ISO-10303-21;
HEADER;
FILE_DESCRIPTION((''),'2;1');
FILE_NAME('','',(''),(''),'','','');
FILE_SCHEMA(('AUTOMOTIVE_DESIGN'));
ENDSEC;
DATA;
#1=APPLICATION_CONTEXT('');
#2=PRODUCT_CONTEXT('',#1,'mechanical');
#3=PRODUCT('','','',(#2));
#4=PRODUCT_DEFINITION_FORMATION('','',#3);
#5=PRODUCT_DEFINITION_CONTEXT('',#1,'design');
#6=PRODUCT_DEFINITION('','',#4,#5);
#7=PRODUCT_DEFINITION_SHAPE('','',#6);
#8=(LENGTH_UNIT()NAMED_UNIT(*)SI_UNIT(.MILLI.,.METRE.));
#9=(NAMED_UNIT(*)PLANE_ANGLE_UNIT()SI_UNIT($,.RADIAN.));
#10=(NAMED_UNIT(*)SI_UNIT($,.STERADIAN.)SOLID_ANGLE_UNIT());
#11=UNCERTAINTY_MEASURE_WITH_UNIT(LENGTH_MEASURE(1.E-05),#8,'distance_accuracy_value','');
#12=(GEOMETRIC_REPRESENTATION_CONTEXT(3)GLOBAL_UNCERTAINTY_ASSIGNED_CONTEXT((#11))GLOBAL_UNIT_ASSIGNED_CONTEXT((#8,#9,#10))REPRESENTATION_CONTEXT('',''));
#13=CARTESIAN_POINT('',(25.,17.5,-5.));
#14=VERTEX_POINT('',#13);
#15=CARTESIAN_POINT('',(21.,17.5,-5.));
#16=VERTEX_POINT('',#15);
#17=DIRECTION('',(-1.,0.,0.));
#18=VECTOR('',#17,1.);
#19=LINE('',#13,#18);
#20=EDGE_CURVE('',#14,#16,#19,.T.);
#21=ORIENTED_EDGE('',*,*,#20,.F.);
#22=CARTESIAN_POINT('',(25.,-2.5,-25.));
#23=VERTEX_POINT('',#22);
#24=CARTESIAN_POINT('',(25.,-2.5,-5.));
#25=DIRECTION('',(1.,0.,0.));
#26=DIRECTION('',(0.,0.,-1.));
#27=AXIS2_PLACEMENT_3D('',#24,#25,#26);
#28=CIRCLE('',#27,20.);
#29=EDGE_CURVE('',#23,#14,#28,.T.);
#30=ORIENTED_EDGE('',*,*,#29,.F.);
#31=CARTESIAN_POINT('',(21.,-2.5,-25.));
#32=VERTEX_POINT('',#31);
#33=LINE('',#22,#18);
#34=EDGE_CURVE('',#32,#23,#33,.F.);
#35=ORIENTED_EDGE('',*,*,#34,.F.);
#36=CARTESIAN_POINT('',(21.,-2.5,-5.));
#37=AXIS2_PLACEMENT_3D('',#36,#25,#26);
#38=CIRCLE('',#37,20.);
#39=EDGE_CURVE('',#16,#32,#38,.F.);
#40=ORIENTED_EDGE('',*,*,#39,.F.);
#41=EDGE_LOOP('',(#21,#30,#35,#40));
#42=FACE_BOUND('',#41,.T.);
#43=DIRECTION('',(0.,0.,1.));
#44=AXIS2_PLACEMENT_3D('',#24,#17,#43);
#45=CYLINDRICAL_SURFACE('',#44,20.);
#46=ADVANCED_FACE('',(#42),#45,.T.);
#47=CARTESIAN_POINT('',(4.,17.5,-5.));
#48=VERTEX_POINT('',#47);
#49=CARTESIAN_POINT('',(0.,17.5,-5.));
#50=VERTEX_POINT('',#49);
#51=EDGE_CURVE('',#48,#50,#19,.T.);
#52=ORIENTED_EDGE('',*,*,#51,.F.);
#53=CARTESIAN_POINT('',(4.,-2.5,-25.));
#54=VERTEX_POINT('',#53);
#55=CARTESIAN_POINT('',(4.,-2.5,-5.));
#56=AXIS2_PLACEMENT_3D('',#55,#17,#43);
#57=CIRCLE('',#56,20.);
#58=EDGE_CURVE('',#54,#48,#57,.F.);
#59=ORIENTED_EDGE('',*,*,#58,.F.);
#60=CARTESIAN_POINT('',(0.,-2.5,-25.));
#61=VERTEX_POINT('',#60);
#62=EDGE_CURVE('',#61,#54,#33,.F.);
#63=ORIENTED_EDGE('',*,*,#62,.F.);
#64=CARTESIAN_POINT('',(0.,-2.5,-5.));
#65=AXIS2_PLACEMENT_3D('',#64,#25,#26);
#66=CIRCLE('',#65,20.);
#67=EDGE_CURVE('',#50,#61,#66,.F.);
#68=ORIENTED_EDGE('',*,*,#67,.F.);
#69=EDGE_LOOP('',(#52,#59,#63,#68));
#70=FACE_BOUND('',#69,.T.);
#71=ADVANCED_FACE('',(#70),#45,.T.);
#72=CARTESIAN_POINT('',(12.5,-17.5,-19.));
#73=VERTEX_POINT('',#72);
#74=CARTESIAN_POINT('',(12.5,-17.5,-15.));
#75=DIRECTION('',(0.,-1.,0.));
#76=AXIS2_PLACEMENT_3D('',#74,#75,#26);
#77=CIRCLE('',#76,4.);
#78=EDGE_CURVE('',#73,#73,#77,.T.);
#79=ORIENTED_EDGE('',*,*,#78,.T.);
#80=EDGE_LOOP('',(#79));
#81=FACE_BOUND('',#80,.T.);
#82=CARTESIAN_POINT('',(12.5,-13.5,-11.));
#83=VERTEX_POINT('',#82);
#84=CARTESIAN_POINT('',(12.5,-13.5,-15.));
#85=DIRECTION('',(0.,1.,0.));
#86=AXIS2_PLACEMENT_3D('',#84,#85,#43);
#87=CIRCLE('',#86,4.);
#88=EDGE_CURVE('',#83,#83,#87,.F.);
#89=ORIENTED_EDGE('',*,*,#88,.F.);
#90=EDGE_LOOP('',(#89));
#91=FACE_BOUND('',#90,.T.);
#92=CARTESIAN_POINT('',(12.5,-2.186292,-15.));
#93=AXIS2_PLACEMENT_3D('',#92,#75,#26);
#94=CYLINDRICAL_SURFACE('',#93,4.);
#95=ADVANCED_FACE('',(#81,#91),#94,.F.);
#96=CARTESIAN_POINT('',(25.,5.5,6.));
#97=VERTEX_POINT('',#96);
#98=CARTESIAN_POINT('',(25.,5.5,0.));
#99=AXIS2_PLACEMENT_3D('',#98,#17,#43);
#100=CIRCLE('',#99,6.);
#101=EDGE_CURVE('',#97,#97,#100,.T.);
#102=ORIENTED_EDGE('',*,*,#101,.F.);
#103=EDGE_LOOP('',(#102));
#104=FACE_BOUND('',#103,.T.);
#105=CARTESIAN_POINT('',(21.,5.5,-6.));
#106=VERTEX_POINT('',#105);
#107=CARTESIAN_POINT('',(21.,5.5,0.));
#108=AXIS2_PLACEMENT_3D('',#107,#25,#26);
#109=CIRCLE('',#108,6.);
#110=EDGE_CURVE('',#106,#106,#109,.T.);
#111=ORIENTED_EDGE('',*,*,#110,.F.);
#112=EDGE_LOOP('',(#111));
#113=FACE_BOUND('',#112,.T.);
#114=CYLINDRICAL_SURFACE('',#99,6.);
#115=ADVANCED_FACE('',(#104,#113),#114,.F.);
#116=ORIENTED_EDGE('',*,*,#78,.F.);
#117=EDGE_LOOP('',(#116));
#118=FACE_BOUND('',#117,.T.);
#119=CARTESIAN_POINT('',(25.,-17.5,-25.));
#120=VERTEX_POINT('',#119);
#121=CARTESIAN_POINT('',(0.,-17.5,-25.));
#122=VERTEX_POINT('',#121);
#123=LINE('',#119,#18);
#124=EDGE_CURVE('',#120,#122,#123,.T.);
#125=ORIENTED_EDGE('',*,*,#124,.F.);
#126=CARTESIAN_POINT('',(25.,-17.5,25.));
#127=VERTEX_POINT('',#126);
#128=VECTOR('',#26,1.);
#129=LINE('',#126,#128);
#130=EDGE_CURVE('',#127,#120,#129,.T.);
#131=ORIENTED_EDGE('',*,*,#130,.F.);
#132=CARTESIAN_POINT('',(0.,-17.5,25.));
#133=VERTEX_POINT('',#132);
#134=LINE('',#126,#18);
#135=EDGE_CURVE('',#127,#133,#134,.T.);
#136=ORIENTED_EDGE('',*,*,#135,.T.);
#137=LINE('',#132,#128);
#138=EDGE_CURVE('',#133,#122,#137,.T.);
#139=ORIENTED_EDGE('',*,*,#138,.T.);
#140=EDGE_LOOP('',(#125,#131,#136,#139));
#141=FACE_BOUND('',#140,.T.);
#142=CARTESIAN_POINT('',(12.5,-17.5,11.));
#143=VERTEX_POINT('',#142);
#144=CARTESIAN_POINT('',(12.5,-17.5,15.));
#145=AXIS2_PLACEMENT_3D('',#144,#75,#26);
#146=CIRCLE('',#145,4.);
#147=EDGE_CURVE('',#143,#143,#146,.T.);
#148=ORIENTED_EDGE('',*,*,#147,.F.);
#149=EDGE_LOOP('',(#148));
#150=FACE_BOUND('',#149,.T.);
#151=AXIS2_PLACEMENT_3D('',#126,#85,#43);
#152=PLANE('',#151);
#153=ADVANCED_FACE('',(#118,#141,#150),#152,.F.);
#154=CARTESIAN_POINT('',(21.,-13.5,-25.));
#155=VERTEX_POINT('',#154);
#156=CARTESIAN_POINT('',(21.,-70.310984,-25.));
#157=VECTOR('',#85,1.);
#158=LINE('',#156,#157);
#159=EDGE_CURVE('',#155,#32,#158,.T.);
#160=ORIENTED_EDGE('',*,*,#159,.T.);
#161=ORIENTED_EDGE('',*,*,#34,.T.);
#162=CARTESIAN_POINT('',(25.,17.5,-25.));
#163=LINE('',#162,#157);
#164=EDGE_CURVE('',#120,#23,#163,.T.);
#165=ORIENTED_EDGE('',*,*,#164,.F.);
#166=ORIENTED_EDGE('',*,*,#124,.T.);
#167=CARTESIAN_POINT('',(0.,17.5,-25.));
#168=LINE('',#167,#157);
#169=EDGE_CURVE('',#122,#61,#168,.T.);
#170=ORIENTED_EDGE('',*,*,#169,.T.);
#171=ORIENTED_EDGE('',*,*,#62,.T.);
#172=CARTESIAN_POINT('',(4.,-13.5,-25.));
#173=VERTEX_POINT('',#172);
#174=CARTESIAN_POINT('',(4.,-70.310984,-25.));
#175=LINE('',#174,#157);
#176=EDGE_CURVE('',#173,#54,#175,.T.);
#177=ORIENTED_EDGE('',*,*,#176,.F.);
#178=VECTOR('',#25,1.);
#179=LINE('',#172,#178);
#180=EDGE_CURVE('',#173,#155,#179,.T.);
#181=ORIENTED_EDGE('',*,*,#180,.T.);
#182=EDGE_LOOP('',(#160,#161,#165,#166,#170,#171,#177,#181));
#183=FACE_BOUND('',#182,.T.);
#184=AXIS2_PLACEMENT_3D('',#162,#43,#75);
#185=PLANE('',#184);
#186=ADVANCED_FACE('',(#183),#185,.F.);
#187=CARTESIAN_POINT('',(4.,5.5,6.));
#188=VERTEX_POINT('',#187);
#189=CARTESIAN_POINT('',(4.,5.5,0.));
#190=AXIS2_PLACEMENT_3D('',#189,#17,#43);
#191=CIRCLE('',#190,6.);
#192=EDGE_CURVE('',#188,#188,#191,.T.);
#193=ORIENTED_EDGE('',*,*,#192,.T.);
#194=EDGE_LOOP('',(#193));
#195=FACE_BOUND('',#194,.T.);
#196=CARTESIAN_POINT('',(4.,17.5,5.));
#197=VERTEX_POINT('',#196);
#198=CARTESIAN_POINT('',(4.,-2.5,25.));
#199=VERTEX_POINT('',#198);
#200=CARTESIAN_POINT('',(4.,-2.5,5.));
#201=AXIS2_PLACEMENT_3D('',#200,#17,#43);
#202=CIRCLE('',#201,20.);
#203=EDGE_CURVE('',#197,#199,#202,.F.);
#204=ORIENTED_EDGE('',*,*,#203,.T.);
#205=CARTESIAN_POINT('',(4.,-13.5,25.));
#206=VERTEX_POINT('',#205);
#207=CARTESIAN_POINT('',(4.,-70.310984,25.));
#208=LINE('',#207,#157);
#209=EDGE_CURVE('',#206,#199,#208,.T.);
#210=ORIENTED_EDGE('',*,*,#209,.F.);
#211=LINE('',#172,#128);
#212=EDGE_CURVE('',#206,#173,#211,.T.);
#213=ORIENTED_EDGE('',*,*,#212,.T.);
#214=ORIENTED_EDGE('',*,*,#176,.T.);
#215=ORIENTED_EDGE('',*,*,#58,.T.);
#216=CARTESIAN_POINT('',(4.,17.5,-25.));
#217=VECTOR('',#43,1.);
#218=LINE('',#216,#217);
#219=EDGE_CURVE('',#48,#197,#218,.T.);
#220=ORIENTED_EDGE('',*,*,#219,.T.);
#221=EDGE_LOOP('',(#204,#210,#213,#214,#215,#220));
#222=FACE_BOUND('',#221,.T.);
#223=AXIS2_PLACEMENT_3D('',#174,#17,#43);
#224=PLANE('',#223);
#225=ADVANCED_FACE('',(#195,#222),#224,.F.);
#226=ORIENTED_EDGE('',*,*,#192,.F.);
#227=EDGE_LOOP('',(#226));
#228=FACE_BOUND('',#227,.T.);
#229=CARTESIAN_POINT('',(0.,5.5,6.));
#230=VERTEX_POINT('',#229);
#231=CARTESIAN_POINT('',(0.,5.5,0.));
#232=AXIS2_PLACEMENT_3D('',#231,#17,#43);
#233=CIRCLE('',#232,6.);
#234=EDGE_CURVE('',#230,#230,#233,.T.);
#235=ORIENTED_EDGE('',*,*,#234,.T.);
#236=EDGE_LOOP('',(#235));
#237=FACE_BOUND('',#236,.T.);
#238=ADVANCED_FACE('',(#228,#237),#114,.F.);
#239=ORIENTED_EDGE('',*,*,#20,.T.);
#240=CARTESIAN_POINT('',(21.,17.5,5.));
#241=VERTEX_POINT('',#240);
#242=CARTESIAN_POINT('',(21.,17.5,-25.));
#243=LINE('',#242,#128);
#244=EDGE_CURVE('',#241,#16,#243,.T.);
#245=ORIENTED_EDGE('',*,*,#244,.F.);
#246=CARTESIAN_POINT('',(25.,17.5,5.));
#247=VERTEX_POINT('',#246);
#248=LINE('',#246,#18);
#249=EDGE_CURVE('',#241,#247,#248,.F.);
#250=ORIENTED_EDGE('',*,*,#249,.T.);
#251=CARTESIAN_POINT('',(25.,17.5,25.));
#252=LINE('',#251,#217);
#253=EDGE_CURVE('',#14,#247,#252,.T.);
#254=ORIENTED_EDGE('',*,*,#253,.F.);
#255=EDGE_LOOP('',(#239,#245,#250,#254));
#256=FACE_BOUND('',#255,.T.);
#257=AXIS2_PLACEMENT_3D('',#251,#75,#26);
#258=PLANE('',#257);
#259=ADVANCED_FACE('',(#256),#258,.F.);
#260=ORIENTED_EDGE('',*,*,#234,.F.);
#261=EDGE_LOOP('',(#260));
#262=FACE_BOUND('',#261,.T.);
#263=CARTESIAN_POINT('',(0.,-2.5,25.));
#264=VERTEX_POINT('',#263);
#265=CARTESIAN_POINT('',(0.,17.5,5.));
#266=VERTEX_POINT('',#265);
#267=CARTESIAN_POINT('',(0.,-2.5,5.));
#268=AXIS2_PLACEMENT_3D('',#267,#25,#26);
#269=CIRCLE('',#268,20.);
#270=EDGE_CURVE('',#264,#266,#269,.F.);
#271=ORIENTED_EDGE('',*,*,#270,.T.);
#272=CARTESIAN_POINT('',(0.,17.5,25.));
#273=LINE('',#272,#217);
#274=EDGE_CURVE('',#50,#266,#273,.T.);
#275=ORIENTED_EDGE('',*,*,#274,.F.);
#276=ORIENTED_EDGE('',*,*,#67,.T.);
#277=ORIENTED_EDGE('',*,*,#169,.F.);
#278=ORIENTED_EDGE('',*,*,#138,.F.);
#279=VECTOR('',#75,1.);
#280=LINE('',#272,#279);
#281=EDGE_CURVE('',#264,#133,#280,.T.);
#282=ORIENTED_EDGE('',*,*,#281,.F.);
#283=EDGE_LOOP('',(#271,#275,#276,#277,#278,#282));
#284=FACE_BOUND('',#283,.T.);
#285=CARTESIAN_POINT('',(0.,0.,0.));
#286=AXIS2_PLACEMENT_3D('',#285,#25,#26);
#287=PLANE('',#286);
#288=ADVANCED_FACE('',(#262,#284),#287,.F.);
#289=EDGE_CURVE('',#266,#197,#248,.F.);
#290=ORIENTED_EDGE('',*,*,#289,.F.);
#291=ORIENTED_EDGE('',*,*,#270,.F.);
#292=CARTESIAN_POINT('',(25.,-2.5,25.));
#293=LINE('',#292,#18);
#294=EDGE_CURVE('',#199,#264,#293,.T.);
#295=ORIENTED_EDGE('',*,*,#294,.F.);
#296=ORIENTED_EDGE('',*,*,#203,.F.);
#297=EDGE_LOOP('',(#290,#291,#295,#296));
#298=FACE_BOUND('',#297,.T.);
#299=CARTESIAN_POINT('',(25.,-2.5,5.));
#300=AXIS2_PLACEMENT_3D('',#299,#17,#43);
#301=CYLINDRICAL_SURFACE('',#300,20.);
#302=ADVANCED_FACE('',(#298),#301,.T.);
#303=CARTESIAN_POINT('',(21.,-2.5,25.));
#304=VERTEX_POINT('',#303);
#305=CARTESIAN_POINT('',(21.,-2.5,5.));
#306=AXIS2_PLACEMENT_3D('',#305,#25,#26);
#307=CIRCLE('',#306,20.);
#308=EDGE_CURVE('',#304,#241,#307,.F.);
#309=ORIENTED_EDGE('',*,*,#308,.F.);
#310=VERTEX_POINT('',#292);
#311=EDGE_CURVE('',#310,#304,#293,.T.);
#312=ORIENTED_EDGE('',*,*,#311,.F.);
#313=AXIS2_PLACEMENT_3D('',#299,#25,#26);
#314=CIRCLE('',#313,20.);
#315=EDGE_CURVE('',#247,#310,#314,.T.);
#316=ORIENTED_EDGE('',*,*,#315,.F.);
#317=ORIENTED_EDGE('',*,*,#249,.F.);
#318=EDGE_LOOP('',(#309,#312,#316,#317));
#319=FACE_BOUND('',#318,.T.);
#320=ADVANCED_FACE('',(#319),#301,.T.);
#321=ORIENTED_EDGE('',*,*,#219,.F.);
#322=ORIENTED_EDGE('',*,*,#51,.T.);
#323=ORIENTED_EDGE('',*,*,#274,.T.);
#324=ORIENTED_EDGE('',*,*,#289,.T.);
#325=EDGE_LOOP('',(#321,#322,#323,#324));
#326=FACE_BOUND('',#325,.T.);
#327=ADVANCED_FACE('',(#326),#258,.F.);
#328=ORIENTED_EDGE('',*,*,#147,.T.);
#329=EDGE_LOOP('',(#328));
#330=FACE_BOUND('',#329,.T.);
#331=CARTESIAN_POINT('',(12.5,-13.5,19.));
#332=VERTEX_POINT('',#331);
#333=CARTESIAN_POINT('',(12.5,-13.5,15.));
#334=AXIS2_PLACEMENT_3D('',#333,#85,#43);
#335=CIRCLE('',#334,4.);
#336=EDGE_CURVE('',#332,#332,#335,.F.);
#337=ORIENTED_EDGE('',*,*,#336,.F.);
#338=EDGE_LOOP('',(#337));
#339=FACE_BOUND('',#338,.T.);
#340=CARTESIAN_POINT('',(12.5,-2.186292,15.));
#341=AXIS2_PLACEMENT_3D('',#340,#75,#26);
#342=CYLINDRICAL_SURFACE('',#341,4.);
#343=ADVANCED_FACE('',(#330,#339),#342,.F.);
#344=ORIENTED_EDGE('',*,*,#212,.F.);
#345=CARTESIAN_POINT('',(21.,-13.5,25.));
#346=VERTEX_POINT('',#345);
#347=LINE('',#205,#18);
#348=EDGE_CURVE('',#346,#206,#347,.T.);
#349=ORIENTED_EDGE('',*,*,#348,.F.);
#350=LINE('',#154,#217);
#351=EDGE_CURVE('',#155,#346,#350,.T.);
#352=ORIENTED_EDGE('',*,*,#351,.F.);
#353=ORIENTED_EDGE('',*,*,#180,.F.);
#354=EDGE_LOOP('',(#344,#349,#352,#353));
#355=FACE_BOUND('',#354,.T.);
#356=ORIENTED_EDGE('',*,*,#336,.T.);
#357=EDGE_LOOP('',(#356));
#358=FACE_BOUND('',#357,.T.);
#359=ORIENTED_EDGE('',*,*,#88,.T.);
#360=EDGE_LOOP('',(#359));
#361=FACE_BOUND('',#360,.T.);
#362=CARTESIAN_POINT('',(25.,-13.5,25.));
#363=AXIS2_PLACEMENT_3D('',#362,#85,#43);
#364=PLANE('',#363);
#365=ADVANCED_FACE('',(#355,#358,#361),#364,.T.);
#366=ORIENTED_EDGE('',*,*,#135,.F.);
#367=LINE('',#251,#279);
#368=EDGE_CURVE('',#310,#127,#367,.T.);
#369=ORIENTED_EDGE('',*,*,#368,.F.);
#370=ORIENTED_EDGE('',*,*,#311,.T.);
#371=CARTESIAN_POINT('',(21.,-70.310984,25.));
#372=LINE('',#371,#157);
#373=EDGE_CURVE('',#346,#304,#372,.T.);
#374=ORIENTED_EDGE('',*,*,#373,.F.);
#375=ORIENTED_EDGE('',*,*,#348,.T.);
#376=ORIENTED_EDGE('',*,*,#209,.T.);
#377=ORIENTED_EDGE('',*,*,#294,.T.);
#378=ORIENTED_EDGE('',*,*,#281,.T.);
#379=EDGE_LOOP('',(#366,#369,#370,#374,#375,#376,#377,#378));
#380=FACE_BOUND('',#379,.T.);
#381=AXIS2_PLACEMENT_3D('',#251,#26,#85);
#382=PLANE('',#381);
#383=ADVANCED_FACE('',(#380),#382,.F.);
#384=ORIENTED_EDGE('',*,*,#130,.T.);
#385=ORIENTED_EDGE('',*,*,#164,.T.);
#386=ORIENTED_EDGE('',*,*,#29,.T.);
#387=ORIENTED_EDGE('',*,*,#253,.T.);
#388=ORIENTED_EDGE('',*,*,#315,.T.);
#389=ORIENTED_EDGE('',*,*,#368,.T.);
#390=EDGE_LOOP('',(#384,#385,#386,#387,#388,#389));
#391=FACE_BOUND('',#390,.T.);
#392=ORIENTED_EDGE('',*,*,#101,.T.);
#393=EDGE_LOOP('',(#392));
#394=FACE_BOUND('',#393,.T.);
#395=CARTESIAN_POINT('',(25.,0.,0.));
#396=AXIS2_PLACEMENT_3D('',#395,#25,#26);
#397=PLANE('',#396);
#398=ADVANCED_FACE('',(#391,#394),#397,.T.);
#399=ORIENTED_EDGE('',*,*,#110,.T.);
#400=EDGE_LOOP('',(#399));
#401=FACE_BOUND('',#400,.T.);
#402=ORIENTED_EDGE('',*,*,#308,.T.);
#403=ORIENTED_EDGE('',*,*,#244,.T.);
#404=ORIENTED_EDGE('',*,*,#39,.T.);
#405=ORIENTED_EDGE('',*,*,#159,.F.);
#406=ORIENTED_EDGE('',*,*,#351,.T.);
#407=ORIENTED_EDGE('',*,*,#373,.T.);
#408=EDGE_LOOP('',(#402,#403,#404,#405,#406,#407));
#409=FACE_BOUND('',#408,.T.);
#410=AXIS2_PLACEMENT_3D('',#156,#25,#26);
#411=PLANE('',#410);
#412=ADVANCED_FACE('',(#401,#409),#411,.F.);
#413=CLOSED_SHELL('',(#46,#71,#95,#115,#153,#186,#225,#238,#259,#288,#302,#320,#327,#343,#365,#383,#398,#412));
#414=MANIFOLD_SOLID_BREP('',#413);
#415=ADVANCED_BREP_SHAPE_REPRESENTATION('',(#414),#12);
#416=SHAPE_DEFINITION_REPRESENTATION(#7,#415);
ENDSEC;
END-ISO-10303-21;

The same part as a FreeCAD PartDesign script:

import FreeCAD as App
import Part
import Sketcher
Q = App.Units.Quantity


def edges_at(feature, points):
    """Names of the edges that pass closest to the given points."""
    edges = feature.Shape.Edges
    near = lambda p: min(range(len(edges)), key=lambda i: edges[i].distToShape(Part.Vertex(*p))[0])
    return sorted({f"Edge{near(p) + 1}" for p in points})

doc = App.newDocument("Part")
body = doc.addObject("PartDesign::Body", "Body")

sketch1 = doc.addObject("Sketcher::SketchObject", "Sketch")
body.addObject(sketch1)
sketch1.AttachmentSupport = (doc.YZ_Plane, [""])
sketch1.MapMode = "FlatFace"
sketch1.addGeometry([
    Part.LineSegment(App.Vector(18, 25, 0), App.Vector(-18, 25, 0)),
    Part.LineSegment(App.Vector(-18, 25, 0), App.Vector(-18, -25, 0)),
    Part.LineSegment(App.Vector(-18, -25, 0), App.Vector(18, -25, 0)),
    Part.LineSegment(App.Vector(18, -25, 0), App.Vector(18, 25, 0)),
], False)
sketch1.addConstraint([
    Sketcher.Constraint("Coincident", 0, 2, 1, 1),
    Sketcher.Constraint("Coincident", 1, 2, 2, 1),
    Sketcher.Constraint("Coincident", 2, 2, 3, 1),
    Sketcher.Constraint("Coincident", 3, 2, 0, 1),
    Sketcher.Constraint("Horizontal", 0),
    Sketcher.Constraint("Vertical", 1),
    Sketcher.Constraint("Horizontal", 2),
    Sketcher.Constraint("Vertical", 3),
    Sketcher.Constraint("Symmetric", 0, 2, 2, 2, -1, 1),
    Sketcher.Constraint("DistanceX", 0, 2, 0, 1, Q("35 mm")),
    Sketcher.Constraint("DistanceY", 1, 2, 1, 1, Q("50 mm")),
])
pad1 = doc.addObject("PartDesign::Pad", "Pad")
body.addObject(pad1)
pad1.Profile = sketch1
pad1.Length = 25

sketch2 = doc.addObject("Sketcher::SketchObject", "Sketch001")
body.addObject(sketch2)
sketch2.AttachmentSupport = (doc.XZ_Plane, [""])
sketch2.MapMode = "FlatFace"
sketch2.AttachmentOffset = App.Placement(App.Vector(0, 0, -17.5), App.Rotation())
sketch2.addGeometry([
    Part.LineSegment(App.Vector(4, -25, 0), App.Vector(4, 25, 0)),
    Part.LineSegment(App.Vector(4, 25, 0), App.Vector(21, 25, 0)),
    Part.LineSegment(App.Vector(21, 25, 0), App.Vector(21, -25, 0)),
    Part.LineSegment(App.Vector(21, -25, 0), App.Vector(4, -25, 0)),
], False)
sketch2.addConstraint([
    Sketcher.Constraint("Coincident", 0, 2, 1, 1),
    Sketcher.Constraint("Coincident", 1, 2, 2, 1),
    Sketcher.Constraint("Coincident", 2, 2, 3, 1),
    Sketcher.Constraint("Coincident", 3, 2, 0, 1),
    Sketcher.Constraint("Vertical", 0),
    Sketcher.Constraint("Horizontal", 1),
    Sketcher.Constraint("Vertical", 2),
    Sketcher.Constraint("Horizontal", 3),
    Sketcher.Constraint("DistanceX", 1, 1, 1, 2, Q("17 mm")),
    Sketcher.Constraint("DistanceY", 0, 1, 0, 2, Q("50 mm")),
    Sketcher.Constraint("DistanceX", -1, 1, 0, 2, Q("4 mm")),
    Sketcher.Constraint("DistanceY", -1, 1, 0, 2, Q("25 mm")),
])
pocket1 = doc.addObject("PartDesign::Pocket", "Pocket")
body.addObject(pocket1)
pocket1.Profile = sketch2
pocket1.Length = 31
pocket1.Reversed = True

sketch3 = doc.addObject("Sketcher::SketchObject", "Sketch002")
body.addObject(sketch3)
sketch3.AttachmentSupport = (doc.YZ_Plane, [""])
sketch3.MapMode = "FlatFace"
sketch3.addGeometry(Part.Circle(App.Vector(6, 0, 0), App.Vector(0, 0, 1), 6), False)
sketch3.addConstraint([
    Sketcher.Constraint("PointOnObject", 0, 3, -1),
    Sketcher.Constraint("Diameter", 0, Q("12 mm")),
    Sketcher.Constraint("DistanceX", -1, 1, 0, 3, Q("5.5 mm")),
])
pocket2 = doc.addObject("PartDesign::Pocket", "Pocket001")
body.addObject(pocket2)
pocket2.Profile = sketch3
pocket2.Type = "ThroughAll"
pocket2.Reversed = True

sketch4 = doc.addObject("Sketcher::SketchObject", "Sketch003")
body.addObject(sketch4)
sketch4.AttachmentSupport = (doc.XZ_Plane, [""])
sketch4.MapMode = "FlatFace"
sketch4.AttachmentOffset = App.Placement(App.Vector(0, 0, 17.5), App.Rotation())
sketch4.addGeometry([
    Part.Circle(App.Vector(12.5, 15, 0), App.Vector(0, 0, 1), 4),
    Part.Circle(App.Vector(12.5, -15, 0), App.Vector(0, 0, 1), 4),
], False)
sketch4.addConstraint([
    Sketcher.Constraint("Equal", 0, 1),
    Sketcher.Constraint("Symmetric", 0, 3, 1, 3, -1),
    Sketcher.Constraint("Diameter", 0, Q("8 mm")),
    Sketcher.Constraint("DistanceY", -1, 1, 0, 3, Q("15 mm")),
    Sketcher.Constraint("DistanceX", -1, 1, 0, 3, Q("12.5 mm")),
])
pocket3 = doc.addObject("PartDesign::Pocket", "Pocket002")
body.addObject(pocket3)
pocket3.Profile = sketch4
pocket3.Length = 4
doc.recompute()

fillet = doc.addObject("PartDesign::Fillet", "Fillet")
body.addObject(fillet)
fillet.Base = (pocket3, edges_at(pocket3, [
    (2, 17.5, 25),
    (2, 17.5, -25),
    (23, 17.5, 25),
    (23, 17.5, -25),
]))
fillet.Radius = 20

doc.recompute()
